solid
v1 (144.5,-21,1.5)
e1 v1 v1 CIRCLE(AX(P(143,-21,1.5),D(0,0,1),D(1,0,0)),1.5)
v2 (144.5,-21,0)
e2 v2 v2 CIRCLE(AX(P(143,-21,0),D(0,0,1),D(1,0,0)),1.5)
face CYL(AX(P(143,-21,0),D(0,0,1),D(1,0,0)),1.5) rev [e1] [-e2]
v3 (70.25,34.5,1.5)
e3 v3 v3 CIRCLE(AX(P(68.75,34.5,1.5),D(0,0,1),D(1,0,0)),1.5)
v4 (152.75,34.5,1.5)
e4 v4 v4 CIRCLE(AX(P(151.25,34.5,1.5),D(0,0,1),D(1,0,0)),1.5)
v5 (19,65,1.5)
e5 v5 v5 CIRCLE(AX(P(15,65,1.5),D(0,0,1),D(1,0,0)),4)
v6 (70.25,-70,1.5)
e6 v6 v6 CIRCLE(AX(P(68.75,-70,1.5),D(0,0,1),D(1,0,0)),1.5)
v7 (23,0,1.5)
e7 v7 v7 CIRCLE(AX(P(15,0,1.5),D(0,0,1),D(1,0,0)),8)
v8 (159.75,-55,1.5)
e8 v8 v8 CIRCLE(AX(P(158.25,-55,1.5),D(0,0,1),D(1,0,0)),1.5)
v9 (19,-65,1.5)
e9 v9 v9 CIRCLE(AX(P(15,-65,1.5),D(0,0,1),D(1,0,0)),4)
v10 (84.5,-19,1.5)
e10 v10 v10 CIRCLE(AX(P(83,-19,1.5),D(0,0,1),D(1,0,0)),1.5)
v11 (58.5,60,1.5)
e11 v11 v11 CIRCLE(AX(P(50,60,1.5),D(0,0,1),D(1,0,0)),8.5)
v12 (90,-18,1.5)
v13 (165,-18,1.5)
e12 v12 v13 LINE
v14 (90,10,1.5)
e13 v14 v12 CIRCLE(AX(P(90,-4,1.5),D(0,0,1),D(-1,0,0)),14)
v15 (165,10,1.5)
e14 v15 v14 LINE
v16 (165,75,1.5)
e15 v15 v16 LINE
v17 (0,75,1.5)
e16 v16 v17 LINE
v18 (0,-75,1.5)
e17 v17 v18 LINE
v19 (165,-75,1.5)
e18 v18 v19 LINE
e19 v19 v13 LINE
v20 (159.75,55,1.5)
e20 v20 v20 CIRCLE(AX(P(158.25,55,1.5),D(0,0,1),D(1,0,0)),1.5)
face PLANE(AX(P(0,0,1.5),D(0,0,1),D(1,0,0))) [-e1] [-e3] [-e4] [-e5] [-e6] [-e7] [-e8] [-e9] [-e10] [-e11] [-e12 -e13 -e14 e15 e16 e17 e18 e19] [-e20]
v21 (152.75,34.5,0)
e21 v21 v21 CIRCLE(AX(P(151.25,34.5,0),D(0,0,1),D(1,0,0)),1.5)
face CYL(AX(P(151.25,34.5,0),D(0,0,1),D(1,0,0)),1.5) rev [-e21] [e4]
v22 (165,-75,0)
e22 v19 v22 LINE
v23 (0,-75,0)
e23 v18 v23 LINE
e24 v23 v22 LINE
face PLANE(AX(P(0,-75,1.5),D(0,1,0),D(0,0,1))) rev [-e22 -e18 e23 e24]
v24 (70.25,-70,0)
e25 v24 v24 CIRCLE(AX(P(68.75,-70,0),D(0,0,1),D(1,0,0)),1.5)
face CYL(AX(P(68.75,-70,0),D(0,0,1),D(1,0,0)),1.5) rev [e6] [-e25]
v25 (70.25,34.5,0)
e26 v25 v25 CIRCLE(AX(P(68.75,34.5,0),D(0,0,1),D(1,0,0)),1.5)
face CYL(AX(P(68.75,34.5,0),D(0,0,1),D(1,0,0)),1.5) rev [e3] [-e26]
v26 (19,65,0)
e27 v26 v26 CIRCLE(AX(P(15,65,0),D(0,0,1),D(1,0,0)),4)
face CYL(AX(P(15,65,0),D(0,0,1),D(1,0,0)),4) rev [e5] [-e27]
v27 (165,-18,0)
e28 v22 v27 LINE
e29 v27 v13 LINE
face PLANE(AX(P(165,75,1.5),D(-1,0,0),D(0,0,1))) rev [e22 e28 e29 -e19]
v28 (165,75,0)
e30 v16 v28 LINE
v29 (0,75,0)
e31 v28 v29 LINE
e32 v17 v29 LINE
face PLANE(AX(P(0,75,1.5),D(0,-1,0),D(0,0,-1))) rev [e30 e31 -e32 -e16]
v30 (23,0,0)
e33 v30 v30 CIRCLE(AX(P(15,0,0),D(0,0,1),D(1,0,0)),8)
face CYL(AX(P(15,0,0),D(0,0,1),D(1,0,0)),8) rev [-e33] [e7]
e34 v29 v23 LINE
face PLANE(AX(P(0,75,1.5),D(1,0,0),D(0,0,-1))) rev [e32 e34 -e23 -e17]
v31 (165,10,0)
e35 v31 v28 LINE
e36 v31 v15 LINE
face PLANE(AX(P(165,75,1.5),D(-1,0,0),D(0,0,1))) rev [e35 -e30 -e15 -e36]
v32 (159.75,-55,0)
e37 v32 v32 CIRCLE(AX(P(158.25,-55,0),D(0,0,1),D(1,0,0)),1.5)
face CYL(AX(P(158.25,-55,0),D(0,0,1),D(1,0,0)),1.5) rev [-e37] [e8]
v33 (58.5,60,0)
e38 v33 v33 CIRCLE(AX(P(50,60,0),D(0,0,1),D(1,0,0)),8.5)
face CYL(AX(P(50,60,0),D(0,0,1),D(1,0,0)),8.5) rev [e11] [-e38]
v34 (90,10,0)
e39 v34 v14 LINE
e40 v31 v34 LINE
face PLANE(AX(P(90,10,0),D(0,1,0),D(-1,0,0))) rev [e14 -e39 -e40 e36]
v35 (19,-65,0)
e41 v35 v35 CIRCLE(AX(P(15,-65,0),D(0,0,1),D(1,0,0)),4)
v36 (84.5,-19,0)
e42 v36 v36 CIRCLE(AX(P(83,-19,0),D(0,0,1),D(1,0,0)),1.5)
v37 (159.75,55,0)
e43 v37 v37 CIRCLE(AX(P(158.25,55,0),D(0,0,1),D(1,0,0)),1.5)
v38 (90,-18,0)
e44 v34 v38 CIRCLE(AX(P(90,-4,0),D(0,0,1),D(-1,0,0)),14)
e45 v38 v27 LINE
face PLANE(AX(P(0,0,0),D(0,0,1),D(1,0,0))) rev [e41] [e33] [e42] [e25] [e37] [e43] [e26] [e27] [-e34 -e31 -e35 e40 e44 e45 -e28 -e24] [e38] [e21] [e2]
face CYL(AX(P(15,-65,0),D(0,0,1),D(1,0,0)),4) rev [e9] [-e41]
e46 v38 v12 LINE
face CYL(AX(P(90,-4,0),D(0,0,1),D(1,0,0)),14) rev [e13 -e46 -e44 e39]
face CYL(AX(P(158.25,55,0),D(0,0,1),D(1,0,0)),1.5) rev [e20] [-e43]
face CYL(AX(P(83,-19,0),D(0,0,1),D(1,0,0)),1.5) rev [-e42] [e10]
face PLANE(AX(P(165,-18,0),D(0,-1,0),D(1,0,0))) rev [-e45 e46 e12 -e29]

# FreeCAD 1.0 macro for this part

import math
import FreeCAD as App
import Part
import Sketcher

V = App.Vector
Q = App.Units.Quantity


def add_polygon(sketch, points):
    """Adds a closed chain of lines whose ends are joined by coincident constraints."""
    first, n = sketch.GeometryCount, len(points)
    for a, b in zip(points, points[1:] + points[:1]):
        sketch.addGeometry(Part.LineSegment(App.Vector(*a, 0), App.Vector(*b, 0)), False)
    for i in range(n):
        sketch.addConstraint(Sketcher.Constraint("Coincident", first + i, 2, first + (i + 1) % n, 1))

doc = App.newDocument("Part")
params = doc.addObject("Spreadsheet::Sheet", "Params")
for row, (alias, value) in enumerate([
    ("sketch1_width", "165 mm"),
    ("sketch1_height", "150 mm"),
    ("pad1_length", "1.5 mm"),
    ("sketch2_diameter", "3 mm"),
    ("sketch2_diameter2", "16 mm"),
    ("sketch2_diameter3", "8 mm"),
    ("sketch2_diameter4", "17 mm"),
    ("sketch2_radius", "14 mm"),
], start=1):
    params.set(f"A{row}", alias)
    params.set(f"B{row}", "=" + value)
    params.setAlias(f"B{row}", alias)

body = doc.addObject("PartDesign::Body", "Body")

# Sketch on XY plane
sketch1 = body.newObject("Sketcher::SketchObject", "Sketch")
sketch1.AttachmentSupport = (doc.getObject("XY_Plane"), [""])
sketch1.MapMode = "FlatFace"
add_polygon(sketch1, [(0, 75), (0, -75), (165, -75), (165, 75)])  # lines 0-3
sketch1.addConstraint([
    Sketcher.Constraint("Vertical", 0),
    Sketcher.Constraint("Horizontal", 1),
    Sketcher.Constraint("Vertical", 2),
    Sketcher.Constraint("Horizontal", 3),
    Sketcher.Constraint("Symmetric", 0, 2, 3, 2, -1, 1),
    Sketcher.Constraint("DistanceX", 1, 1, 1, 2, Q("165 mm")),
    Sketcher.Constraint("DistanceY", 0, 2, 0, 1, Q("150 mm")),
])
sketch1.setExpression("Constraints[9]", "Params.sketch1_width")
sketch1.setExpression("Constraints[10]", "Params.sketch1_height")
pad1 = body.newObject("PartDesign::Pad", "Pad")
pad1.Profile = sketch1
pad1.setExpression("Length", "Params.pad1_length")

# Sketch on XY plane
sketch2 = body.newObject("Sketcher::SketchObject", "Sketch001")
sketch2.AttachmentSupport = (doc.getObject("XY_Plane"), [""])
sketch2.MapMode = "FlatFace"
sketch2.AttachmentOffset = App.Placement(V(0, 0, 1.5), App.Rotation())
sketch2.addGeometry([
    Part.Circle(V(158.2, 55, 0), V(0, 0, 1), 1.5),  # 0
    Part.Circle(V(158.2, -55, 0), V(0, 0, 1), 1.5),  # 1
    Part.Circle(V(151.2, 34.5, 0), V(0, 0, 1), 1.5),  # 2
    Part.Circle(V(83, -19, 0), V(0, 0, 1), 1.5),  # 3
    Part.Circle(V(143, -21, 0), V(0, 0, 1), 1.5),  # 4
    Part.Circle(V(15, 0, 0), V(0, 0, 1), 8),  # 5
    Part.Circle(V(15, 65, 0), V(0, 0, 1), 4),  # 6
    Part.Circle(V(15, -65, 0), V(0, 0, 1), 4),  # 7
    Part.Circle(V(50, 60, 0), V(0, 0, 1), 8.5),  # 8
    Part.Circle(V(68.8, 34.5, 0), V(0, 0, 1), 1.5),  # 9
    Part.Circle(V(68.8, -70, 0), V(0, 0, 1), 1.5),  # 10
    Part.LineSegment(V(165, 10, 0), V(90, 10, 0)),  # 11
    Part.ArcOfCircle(Part.Circle(V(90, -4, 0), V(0, 0, 1), 14), math.radians(90), math.radians(270)),  # 12
    Part.LineSegment(V(90, -18, 0), V(165, -18, 0)),  # 13
    Part.ArcOfCircle(Part.Circle(V(165, -4, 0), V(0, 0, 1), 14), math.radians(-90), math.radians(90)),  # 14
], False)
sketch2.addConstraint([
    Sketcher.Constraint("Tangent", 11, 2, 12, 1),
    Sketcher.Constraint("Tangent", 12, 2, 13, 1),
    Sketcher.Constraint("Tangent", 13, 2, 14, 1),
    Sketcher.Constraint("Tangent", 14, 2, 11, 1),
    Sketcher.Constraint("Horizontal", 11),
    Sketcher.Constraint("Horizontal", 13),
    Sketcher.Constraint("Equal", 0, 1),
    Sketcher.Constraint("Equal", 1, 2),
    Sketcher.Constraint("Equal", 2, 3),
    Sketcher.Constraint("Equal", 3, 4),
    Sketcher.Constraint("Equal", 6, 7),
    Sketcher.Constraint("Equal", 4, 9),
    Sketcher.Constraint("Equal", 9, 10),
    Sketcher.Constraint("Symmetric", 0, 3, 1, 3, -1),
    Sketcher.Constraint("Symmetric", 6, 3, 7, 3, -1),
    Sketcher.Constraint("PointOnObject", 5, 3, -1),
    Sketcher.Constraint("Horizontal", 2, 3, 9, 3),
    Sketcher.Constraint("Vertical", 5, 3, 6, 3),
    Sketcher.Constraint("Vertical", 9, 3, 10, 3),
    Sketcher.Constraint("Diameter", 0, Q("3 mm")),
    Sketcher.Constraint("Diameter", 5, Q("16 mm")),
    Sketcher.Constraint("Diameter", 6, Q("8 mm")),
    Sketcher.Constraint("Diameter", 8, Q("17 mm")),
    Sketcher.Constraint("Radius", 12, Q("14 mm")),
    Sketcher.Constraint("DistanceX", 11, 2, 11, 1, Q("75 mm")),
    Sketcher.Constraint("DistanceY", -1, 1, 0, 3, Q("55 mm")),
    Sketcher.Constraint("DistanceX", -1, 1, 3, 3, Q("83 mm")),
    Sketcher.Constraint("DistanceY", 3, 3, -1, 1, Q("19 mm")),
    Sketcher.Constraint("DistanceX", -1, 1, 4, 3, Q("143 mm")),
    Sketcher.Constraint("DistanceY", 4, 3, -1, 1, Q("21 mm")),
    Sketcher.Constraint("DistanceX", -1, 1, 5, 3, Q("15 mm")),
    Sketcher.Constraint("DistanceY", -1, 1, 6, 3, Q("65 mm")),
    Sketcher.Constraint("DistanceX", -1, 1, 8, 3, Q("50 mm")),
    Sketcher.Constraint("DistanceY", -1, 1, 8, 3, Q("60 mm")),
    Sketcher.Constraint("DistanceY", 10, 3, -1, 1, Q("70 mm")),
    Sketcher.Constraint("DistanceX", -1, 1, 12, 3, Q("90 mm")),
    Sketcher.Constraint("DistanceY", 12, 3, -1, 1, Q("4 mm")),
    Sketcher.Constraint("DistanceX", 2, 3, 0, 3, Q("7 mm")),
    Sketcher.Constraint("DistanceY", -1, 1, 2, 3, Q("34.5 mm")),
    Sketcher.Constraint("DistanceX", 9, 3, 2, 3, Q("82.5 mm")),
    Sketcher.Constraint("DistanceX", -1, 1, 0, 3, Q("158.25 mm")),
])
sketch2.setExpression("Constraints[19]", "Params.sketch2_diameter")
sketch2.setExpression("Constraints[20]", "Params.sketch2_diameter2")
sketch2.setExpression("Constraints[21]", "Params.sketch2_diameter3")
sketch2.setExpression("Constraints[22]", "Params.sketch2_diameter4")
sketch2.setExpression("Constraints[23]", "Params.sketch2_radius")
pocket1 = body.newObject("PartDesign::Pocket", "Pocket")
pocket1.Profile = sketch2
pocket1.Type = "ThroughAll"

doc.recompute()
